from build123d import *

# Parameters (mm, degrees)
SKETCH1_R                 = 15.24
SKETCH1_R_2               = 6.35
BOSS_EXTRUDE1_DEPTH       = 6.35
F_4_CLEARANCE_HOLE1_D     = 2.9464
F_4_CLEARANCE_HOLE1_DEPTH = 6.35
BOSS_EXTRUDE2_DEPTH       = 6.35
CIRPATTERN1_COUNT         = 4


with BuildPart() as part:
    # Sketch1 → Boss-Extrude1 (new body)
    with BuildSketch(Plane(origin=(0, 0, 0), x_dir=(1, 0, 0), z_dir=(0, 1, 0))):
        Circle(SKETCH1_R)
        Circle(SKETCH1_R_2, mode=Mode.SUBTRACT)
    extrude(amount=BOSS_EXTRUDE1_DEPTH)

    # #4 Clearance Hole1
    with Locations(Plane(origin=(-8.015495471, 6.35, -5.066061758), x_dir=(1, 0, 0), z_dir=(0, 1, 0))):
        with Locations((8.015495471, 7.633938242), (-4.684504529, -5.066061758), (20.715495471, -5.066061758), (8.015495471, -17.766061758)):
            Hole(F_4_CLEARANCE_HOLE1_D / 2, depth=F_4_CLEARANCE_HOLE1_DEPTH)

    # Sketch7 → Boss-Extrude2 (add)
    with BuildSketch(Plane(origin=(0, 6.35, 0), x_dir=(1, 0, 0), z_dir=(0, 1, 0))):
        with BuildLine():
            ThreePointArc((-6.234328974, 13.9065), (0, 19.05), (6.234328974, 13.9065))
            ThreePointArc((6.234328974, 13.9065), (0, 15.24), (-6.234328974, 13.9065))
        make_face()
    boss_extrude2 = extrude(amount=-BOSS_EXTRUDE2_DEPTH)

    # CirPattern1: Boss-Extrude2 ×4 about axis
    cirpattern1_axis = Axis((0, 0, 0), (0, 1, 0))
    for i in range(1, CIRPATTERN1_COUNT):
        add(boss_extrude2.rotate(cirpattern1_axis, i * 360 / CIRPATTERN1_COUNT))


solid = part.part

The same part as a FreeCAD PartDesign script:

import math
import FreeCAD as App
import Part
import Sketcher
from FreeCAD import Vector
Q = App.Units.Quantity

doc = App.newDocument("Part")
body = doc.addObject("PartDesign::Body", "Body")

sketch1 = body.newObject("Sketcher::SketchObject", "Sketch")
sketch1.AttachmentSupport = (doc.getObject("XZ_Plane"), [""])
sketch1.MapMode = "FlatFace"
sketch1.addGeometry([
    Part.Circle(Vector(0, 0, 0), Vector(0, 0, 1), 15.24),
    Part.Circle(Vector(0, 0, 0), Vector(0, 0, 1), 6.35),
], False)
sketch1.addConstraint([
    Sketcher.Constraint("Coincident", 0, 3, -1, 1),
    Sketcher.Constraint("Coincident", 1, 3, -1, 1),
    Sketcher.Constraint("Diameter", 0, Q("1.2 in")),
    Sketcher.Constraint("Diameter", 1, Q("0.5 in")),
])
pad1 = body.newObject("PartDesign::Pad", "Pad")
pad1.Profile = sketch1
pad1.Length = Q("0.25 in")
pad1.Reversed = True

sketch2 = body.newObject("Sketcher::SketchObject", "Sketch001")
sketch2.AttachmentSupport = (doc.getObject("XZ_Plane"), [""])
sketch2.MapMode = "FlatFace"
sketch2.AttachmentOffset = App.Placement(Vector(0, 0, -0.25 * 25.4), App.Rotation())
sketch2.addGeometry([
    Part.Circle(Vector(0, -12.7, 0), Vector(0, 0, 1), 1.4732),
    Part.Circle(Vector(-12.7, 0, 0), Vector(0, 0, 1), 1.4732),
    Part.Circle(Vector(12.7, 0, 0), Vector(0, 0, 1), 1.4732),
    Part.Circle(Vector(0, 12.7, 0), Vector(0, 0, 1), 1.4732),
], False)
sketch2.addConstraint([
    Sketcher.Constraint("Equal", 0, 1),
    Sketcher.Constraint("Equal", 1, 2),
    Sketcher.Constraint("Equal", 2, 3),
    Sketcher.Constraint("Symmetric", 1, 3, 2, 3, -1, 1),
    Sketcher.Constraint("Symmetric", 0, 3, 3, 3, -1, 1),
    Sketcher.Constraint("PointOnObject", 0, 3, -2),
    Sketcher.Constraint("PointOnObject", 1, 3, -1),
    Sketcher.Constraint("Diameter", 0, Q("0.116 in")),
    Sketcher.Constraint("DistanceX", 1, 3, 2, 3, Q("1 in")),
    Sketcher.Constraint("DistanceY", 0, 3, 3, 3, Q("1 in")),
])
doc.recompute()
hole = body.newObject("PartDesign::Hole", "Hole")
hole.Profile = sketch2
hole.ThreadType = "None"
hole.Diameter = Q("0.116 in")
hole.DepthType = "Dimension"
hole.Depth = Q("0.25 in")
hole.DrillPoint = "Flat"
hole.Reversed = True

sketch3 = body.newObject("Sketcher::SketchObject", "Sketch002")
sketch3.AttachmentSupport = (doc.getObject("XZ_Plane"), [""])
sketch3.MapMode = "FlatFace"
sketch3.AttachmentOffset = App.Placement(Vector(0, 0, -0.25 * 25.4), App.Rotation())
sketch3.addGeometry([
    Part.ArcOfCircle(Part.Circle(Vector(0, -12.7, 0), Vector(0, 0, 1), 6.35), math.radians(-169.047216), math.radians(-10.952784)),
    Part.ArcOfCircle(Part.Circle(Vector(0, 0, 0), Vector(0, 0, 1), 15.24), math.radians(-114.146848), math.radians(-65.853152)),
], False)
sketch3.addConstraint([
    Sketcher.Constraint("Coincident", 0, 1, 1, 1),
    Sketcher.Constraint("Coincident", 1, 2, 0, 2),
    Sketcher.Constraint("Coincident", 1, 3, -1, 1),
    Sketcher.Constraint("PointOnObject", 0, 3, -2),
    Sketcher.Constraint("Radius", 1, Q("0.6 in")),
    Sketcher.Constraint("Radius", 0, Q("0.25 in")),
    Sketcher.Constraint("DistanceY", 0, 3, -1, 1, Q("0.5 in")),
])
pad2 = body.newObject("PartDesign::Pad", "Pad001")
pad2.Profile = sketch3
pad2.Length = Q("0.25 in")
doc.recompute()

polarpattern = body.newObject("PartDesign::PolarPattern", "PolarPattern")
polarpattern.Originals = [pad2]
polarpattern.Axis = (doc.getObject("Y_Axis"), [""])
polarpattern.Angle = 360
polarpattern.Occurrences = 4
body.Tip = polarpattern

doc.recompute()
